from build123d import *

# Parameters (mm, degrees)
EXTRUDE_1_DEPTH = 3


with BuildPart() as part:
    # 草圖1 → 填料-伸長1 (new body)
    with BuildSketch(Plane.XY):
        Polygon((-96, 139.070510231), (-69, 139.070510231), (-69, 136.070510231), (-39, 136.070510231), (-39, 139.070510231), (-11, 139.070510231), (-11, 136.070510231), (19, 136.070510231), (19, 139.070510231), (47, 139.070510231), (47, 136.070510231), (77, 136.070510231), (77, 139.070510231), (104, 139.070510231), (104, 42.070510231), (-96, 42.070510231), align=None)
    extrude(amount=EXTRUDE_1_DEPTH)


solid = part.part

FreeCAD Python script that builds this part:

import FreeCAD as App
import Part
import Sketcher

V = App.Vector

doc = App.newDocument("Part")
params = doc.addObject("Spreadsheet::Sheet", "Params")
for row, (alias, value) in enumerate([
    ("sketch1_width", "27 mm"),
    ("sketch1_width2", "200 mm"),
    ("sketch1_width3", "30 mm"),
    ("sketch1_height", "97 mm"),
    ("sketch1_height2", "3 mm"),
    ("pad1_length", "3 mm"),
], start=1):
    params.set(f"A{row}", alias)
    params.set(f"B{row}", "=" + value)
    params.setAlias(f"B{row}", alias)

body = doc.addObject("PartDesign::Body", "Body")

# Sketch on XY plane
sketch1 = body.newObject("Sketcher::SketchObject", "Sketch")
sketch1.AttachmentSupport = (doc.getObject("XY_Plane"), [""])
sketch1.MapMode = "FlatFace"
sketch1.addGeometry(Part.LineSegment(V(-69, 139.1, 0), V(-96, 139.1, 0)), False)
sketch1.addGeometry(Part.LineSegment(V(-96, 139.1, 0), V(-96, 42.1, 0)), False)
sketch1.addGeometry(Part.LineSegment(V(-96, 42.1, 0), V(104, 42.1, 0)), False)
sketch1.addGeometry(Part.LineSegment(V(104, 42.1, 0), V(104, 139.1, 0)), False)
sketch1.addGeometry(Part.LineSegment(V(104, 139.1, 0), V(77, 139.1, 0)), False)
sketch1.addGeometry(Part.LineSegment(V(77, 139.1, 0), V(77, 136.1, 0)), False)
sketch1.addGeometry(Part.LineSegment(V(77, 136.1, 0), V(47, 136.1, 0)), False)
sketch1.addGeometry(Part.LineSegment(V(47, 136.1, 0), V(47, 139.1, 0)), False)
sketch1.addGeometry(Part.LineSegment(V(47, 139.1, 0), V(19, 139.1, 0)), False)
sketch1.addGeometry(Part.LineSegment(V(19, 139.1, 0), V(19, 136.1, 0)), False)
sketch1.addGeometry(Part.LineSegment(V(19, 136.1, 0), V(-11, 136.1, 0)), False)
sketch1.addGeometry(Part.LineSegment(V(-11, 136.1, 0), V(-11, 139.1, 0)), False)
sketch1.addGeometry(Part.LineSegment(V(-11, 139.1, 0), V(-39, 139.1, 0)), False)
sketch1.addGeometry(Part.LineSegment(V(-39, 139.1, 0), V(-39, 136.1, 0)), False)
sketch1.addGeometry(Part.LineSegment(V(-39, 136.1, 0), V(-69, 136.1, 0)), False)
sketch1.addGeometry(Part.LineSegment(V(-69, 136.1, 0), V(-69, 139.1, 0)), False)
sketch1.addConstraint(Sketcher.Constraint("Coincident", 0, 2, 1, 1))
sketch1.addConstraint(Sketcher.Constraint("Coincident", 1, 2, 2, 1))
sketch1.addConstraint(Sketcher.Constraint("Coincident", 2, 2, 3, 1))
sketch1.addConstraint(Sketcher.Constraint("Coincident", 3, 2, 4, 1))
sketch1.addConstraint(Sketcher.Constraint("Coincident", 4, 2, 5, 1))
sketch1.addConstraint(Sketcher.Constraint("Coincident", 5, 2, 6, 1))
sketch1.addConstraint(Sketcher.Constraint("Coincident", 6, 2, 7, 1))
sketch1.addConstraint(Sketcher.Constraint("Coincident", 7, 2, 8, 1))
sketch1.addConstraint(Sketcher.Constraint("Coincident", 8, 2, 9, 1))
sketch1.addConstraint(Sketcher.Constraint("Coincident", 9, 2, 10, 1))
sketch1.addConstraint(Sketcher.Constraint("Coincident", 10, 2, 11, 1))
sketch1.addConstraint(Sketcher.Constraint("Coincident", 11, 2, 12, 1))
sketch1.addConstraint(Sketcher.Constraint("Coincident", 12, 2, 13, 1))
sketch1.addConstraint(Sketcher.Constraint("Coincident", 13, 2, 14, 1))
sketch1.addConstraint(Sketcher.Constraint("Coincident", 14, 2, 15, 1))
sketch1.addConstraint(Sketcher.Constraint("Coincident", 15, 2, 0, 1))
sketch1.addConstraint(Sketcher.Constraint("Horizontal", 0))
sketch1.addConstraint(Sketcher.Constraint("Vertical", 1))
sketch1.addConstraint(Sketcher.Constraint("Horizontal", 2))
sketch1.addConstraint(Sketcher.Constraint("Vertical", 3))
sketch1.addConstraint(Sketcher.Constraint("Horizontal", 4))
sketch1.addConstraint(Sketcher.Constraint("Vertical", 5))
sketch1.addConstraint(Sketcher.Constraint("Horizontal", 6))
sketch1.addConstraint(Sketcher.Constraint("Vertical", 7))
sketch1.addConstraint(Sketcher.Constraint("Horizontal", 8))
sketch1.addConstraint(Sketcher.Constraint("Vertical", 9))
sketch1.addConstraint(Sketcher.Constraint("Horizontal", 10))
sketch1.addConstraint(Sketcher.Constraint("Vertical", 11))
sketch1.addConstraint(Sketcher.Constraint("Horizontal", 12))
sketch1.addConstraint(Sketcher.Constraint("Vertical", 13))
sketch1.addConstraint(Sketcher.Constraint("Horizontal", 14))
sketch1.addConstraint(Sketcher.Constraint("Vertical", 15))
sketch1.addConstraint(Sketcher.Constraint("Horizontal", 0, 2, 3, 2))
sketch1.addConstraint(Sketcher.Constraint("Horizontal", 4, 2, 7, 2))
sketch1.addConstraint(Sketcher.Constraint("Horizontal", 6, 2, 9, 2))
sketch1.addConstraint(Sketcher.Constraint("Horizontal", 8, 2, 11, 2))
sketch1.addConstraint(Sketcher.Constraint("Horizontal", 10, 2, 13, 2))
sketch1.addConstraint(Sketcher.Constraint("Equal", 0, 4))
sketch1.addConstraint(Sketcher.Constraint("Equal", 6, 10))
sketch1.addConstraint(Sketcher.Constraint("Equal", 8, 12))
sketch1.addConstraint(Sketcher.Constraint("Equal", 10, 14))
sketch1.addConstraint(Sketcher.Constraint("DistanceX", 0, 2, 0, 1, 27.0))
sketch1.addConstraint(Sketcher.Constraint("DistanceX", 2, 1, 2, 2, 200.0))
sketch1.addConstraint(Sketcher.Constraint("DistanceX", 6, 2, 6, 1, 30.0))
sketch1.addConstraint(Sketcher.Constraint("DistanceY", 1, 2, 1, 1, 97.0))
sketch1.addConstraint(Sketcher.Constraint("DistanceY", 5, 2, 5, 1, 3.0))
sketch1.addConstraint(Sketcher.Constraint("DistanceX", 0, 2, -1, 1, 96.0))
sketch1.addConstraint(Sketcher.Constraint("DistanceY", -1, 1, 0, 2, 139.07051))
sketch1.setExpression("Constraints[41]", "Params.sketch1_width")
sketch1.setExpression("Constraints[42]", "Params.sketch1_width2")
sketch1.setExpression("Constraints[43]", "Params.sketch1_width3")
sketch1.setExpression("Constraints[44]", "Params.sketch1_height")
sketch1.setExpression("Constraints[45]", "Params.sketch1_height2")
pad1 = body.newObject("PartDesign::Pad", "Pad")
pad1.Profile = sketch1
pad1.setExpression("Length", "Params.pad1_length")

doc.recompute()
